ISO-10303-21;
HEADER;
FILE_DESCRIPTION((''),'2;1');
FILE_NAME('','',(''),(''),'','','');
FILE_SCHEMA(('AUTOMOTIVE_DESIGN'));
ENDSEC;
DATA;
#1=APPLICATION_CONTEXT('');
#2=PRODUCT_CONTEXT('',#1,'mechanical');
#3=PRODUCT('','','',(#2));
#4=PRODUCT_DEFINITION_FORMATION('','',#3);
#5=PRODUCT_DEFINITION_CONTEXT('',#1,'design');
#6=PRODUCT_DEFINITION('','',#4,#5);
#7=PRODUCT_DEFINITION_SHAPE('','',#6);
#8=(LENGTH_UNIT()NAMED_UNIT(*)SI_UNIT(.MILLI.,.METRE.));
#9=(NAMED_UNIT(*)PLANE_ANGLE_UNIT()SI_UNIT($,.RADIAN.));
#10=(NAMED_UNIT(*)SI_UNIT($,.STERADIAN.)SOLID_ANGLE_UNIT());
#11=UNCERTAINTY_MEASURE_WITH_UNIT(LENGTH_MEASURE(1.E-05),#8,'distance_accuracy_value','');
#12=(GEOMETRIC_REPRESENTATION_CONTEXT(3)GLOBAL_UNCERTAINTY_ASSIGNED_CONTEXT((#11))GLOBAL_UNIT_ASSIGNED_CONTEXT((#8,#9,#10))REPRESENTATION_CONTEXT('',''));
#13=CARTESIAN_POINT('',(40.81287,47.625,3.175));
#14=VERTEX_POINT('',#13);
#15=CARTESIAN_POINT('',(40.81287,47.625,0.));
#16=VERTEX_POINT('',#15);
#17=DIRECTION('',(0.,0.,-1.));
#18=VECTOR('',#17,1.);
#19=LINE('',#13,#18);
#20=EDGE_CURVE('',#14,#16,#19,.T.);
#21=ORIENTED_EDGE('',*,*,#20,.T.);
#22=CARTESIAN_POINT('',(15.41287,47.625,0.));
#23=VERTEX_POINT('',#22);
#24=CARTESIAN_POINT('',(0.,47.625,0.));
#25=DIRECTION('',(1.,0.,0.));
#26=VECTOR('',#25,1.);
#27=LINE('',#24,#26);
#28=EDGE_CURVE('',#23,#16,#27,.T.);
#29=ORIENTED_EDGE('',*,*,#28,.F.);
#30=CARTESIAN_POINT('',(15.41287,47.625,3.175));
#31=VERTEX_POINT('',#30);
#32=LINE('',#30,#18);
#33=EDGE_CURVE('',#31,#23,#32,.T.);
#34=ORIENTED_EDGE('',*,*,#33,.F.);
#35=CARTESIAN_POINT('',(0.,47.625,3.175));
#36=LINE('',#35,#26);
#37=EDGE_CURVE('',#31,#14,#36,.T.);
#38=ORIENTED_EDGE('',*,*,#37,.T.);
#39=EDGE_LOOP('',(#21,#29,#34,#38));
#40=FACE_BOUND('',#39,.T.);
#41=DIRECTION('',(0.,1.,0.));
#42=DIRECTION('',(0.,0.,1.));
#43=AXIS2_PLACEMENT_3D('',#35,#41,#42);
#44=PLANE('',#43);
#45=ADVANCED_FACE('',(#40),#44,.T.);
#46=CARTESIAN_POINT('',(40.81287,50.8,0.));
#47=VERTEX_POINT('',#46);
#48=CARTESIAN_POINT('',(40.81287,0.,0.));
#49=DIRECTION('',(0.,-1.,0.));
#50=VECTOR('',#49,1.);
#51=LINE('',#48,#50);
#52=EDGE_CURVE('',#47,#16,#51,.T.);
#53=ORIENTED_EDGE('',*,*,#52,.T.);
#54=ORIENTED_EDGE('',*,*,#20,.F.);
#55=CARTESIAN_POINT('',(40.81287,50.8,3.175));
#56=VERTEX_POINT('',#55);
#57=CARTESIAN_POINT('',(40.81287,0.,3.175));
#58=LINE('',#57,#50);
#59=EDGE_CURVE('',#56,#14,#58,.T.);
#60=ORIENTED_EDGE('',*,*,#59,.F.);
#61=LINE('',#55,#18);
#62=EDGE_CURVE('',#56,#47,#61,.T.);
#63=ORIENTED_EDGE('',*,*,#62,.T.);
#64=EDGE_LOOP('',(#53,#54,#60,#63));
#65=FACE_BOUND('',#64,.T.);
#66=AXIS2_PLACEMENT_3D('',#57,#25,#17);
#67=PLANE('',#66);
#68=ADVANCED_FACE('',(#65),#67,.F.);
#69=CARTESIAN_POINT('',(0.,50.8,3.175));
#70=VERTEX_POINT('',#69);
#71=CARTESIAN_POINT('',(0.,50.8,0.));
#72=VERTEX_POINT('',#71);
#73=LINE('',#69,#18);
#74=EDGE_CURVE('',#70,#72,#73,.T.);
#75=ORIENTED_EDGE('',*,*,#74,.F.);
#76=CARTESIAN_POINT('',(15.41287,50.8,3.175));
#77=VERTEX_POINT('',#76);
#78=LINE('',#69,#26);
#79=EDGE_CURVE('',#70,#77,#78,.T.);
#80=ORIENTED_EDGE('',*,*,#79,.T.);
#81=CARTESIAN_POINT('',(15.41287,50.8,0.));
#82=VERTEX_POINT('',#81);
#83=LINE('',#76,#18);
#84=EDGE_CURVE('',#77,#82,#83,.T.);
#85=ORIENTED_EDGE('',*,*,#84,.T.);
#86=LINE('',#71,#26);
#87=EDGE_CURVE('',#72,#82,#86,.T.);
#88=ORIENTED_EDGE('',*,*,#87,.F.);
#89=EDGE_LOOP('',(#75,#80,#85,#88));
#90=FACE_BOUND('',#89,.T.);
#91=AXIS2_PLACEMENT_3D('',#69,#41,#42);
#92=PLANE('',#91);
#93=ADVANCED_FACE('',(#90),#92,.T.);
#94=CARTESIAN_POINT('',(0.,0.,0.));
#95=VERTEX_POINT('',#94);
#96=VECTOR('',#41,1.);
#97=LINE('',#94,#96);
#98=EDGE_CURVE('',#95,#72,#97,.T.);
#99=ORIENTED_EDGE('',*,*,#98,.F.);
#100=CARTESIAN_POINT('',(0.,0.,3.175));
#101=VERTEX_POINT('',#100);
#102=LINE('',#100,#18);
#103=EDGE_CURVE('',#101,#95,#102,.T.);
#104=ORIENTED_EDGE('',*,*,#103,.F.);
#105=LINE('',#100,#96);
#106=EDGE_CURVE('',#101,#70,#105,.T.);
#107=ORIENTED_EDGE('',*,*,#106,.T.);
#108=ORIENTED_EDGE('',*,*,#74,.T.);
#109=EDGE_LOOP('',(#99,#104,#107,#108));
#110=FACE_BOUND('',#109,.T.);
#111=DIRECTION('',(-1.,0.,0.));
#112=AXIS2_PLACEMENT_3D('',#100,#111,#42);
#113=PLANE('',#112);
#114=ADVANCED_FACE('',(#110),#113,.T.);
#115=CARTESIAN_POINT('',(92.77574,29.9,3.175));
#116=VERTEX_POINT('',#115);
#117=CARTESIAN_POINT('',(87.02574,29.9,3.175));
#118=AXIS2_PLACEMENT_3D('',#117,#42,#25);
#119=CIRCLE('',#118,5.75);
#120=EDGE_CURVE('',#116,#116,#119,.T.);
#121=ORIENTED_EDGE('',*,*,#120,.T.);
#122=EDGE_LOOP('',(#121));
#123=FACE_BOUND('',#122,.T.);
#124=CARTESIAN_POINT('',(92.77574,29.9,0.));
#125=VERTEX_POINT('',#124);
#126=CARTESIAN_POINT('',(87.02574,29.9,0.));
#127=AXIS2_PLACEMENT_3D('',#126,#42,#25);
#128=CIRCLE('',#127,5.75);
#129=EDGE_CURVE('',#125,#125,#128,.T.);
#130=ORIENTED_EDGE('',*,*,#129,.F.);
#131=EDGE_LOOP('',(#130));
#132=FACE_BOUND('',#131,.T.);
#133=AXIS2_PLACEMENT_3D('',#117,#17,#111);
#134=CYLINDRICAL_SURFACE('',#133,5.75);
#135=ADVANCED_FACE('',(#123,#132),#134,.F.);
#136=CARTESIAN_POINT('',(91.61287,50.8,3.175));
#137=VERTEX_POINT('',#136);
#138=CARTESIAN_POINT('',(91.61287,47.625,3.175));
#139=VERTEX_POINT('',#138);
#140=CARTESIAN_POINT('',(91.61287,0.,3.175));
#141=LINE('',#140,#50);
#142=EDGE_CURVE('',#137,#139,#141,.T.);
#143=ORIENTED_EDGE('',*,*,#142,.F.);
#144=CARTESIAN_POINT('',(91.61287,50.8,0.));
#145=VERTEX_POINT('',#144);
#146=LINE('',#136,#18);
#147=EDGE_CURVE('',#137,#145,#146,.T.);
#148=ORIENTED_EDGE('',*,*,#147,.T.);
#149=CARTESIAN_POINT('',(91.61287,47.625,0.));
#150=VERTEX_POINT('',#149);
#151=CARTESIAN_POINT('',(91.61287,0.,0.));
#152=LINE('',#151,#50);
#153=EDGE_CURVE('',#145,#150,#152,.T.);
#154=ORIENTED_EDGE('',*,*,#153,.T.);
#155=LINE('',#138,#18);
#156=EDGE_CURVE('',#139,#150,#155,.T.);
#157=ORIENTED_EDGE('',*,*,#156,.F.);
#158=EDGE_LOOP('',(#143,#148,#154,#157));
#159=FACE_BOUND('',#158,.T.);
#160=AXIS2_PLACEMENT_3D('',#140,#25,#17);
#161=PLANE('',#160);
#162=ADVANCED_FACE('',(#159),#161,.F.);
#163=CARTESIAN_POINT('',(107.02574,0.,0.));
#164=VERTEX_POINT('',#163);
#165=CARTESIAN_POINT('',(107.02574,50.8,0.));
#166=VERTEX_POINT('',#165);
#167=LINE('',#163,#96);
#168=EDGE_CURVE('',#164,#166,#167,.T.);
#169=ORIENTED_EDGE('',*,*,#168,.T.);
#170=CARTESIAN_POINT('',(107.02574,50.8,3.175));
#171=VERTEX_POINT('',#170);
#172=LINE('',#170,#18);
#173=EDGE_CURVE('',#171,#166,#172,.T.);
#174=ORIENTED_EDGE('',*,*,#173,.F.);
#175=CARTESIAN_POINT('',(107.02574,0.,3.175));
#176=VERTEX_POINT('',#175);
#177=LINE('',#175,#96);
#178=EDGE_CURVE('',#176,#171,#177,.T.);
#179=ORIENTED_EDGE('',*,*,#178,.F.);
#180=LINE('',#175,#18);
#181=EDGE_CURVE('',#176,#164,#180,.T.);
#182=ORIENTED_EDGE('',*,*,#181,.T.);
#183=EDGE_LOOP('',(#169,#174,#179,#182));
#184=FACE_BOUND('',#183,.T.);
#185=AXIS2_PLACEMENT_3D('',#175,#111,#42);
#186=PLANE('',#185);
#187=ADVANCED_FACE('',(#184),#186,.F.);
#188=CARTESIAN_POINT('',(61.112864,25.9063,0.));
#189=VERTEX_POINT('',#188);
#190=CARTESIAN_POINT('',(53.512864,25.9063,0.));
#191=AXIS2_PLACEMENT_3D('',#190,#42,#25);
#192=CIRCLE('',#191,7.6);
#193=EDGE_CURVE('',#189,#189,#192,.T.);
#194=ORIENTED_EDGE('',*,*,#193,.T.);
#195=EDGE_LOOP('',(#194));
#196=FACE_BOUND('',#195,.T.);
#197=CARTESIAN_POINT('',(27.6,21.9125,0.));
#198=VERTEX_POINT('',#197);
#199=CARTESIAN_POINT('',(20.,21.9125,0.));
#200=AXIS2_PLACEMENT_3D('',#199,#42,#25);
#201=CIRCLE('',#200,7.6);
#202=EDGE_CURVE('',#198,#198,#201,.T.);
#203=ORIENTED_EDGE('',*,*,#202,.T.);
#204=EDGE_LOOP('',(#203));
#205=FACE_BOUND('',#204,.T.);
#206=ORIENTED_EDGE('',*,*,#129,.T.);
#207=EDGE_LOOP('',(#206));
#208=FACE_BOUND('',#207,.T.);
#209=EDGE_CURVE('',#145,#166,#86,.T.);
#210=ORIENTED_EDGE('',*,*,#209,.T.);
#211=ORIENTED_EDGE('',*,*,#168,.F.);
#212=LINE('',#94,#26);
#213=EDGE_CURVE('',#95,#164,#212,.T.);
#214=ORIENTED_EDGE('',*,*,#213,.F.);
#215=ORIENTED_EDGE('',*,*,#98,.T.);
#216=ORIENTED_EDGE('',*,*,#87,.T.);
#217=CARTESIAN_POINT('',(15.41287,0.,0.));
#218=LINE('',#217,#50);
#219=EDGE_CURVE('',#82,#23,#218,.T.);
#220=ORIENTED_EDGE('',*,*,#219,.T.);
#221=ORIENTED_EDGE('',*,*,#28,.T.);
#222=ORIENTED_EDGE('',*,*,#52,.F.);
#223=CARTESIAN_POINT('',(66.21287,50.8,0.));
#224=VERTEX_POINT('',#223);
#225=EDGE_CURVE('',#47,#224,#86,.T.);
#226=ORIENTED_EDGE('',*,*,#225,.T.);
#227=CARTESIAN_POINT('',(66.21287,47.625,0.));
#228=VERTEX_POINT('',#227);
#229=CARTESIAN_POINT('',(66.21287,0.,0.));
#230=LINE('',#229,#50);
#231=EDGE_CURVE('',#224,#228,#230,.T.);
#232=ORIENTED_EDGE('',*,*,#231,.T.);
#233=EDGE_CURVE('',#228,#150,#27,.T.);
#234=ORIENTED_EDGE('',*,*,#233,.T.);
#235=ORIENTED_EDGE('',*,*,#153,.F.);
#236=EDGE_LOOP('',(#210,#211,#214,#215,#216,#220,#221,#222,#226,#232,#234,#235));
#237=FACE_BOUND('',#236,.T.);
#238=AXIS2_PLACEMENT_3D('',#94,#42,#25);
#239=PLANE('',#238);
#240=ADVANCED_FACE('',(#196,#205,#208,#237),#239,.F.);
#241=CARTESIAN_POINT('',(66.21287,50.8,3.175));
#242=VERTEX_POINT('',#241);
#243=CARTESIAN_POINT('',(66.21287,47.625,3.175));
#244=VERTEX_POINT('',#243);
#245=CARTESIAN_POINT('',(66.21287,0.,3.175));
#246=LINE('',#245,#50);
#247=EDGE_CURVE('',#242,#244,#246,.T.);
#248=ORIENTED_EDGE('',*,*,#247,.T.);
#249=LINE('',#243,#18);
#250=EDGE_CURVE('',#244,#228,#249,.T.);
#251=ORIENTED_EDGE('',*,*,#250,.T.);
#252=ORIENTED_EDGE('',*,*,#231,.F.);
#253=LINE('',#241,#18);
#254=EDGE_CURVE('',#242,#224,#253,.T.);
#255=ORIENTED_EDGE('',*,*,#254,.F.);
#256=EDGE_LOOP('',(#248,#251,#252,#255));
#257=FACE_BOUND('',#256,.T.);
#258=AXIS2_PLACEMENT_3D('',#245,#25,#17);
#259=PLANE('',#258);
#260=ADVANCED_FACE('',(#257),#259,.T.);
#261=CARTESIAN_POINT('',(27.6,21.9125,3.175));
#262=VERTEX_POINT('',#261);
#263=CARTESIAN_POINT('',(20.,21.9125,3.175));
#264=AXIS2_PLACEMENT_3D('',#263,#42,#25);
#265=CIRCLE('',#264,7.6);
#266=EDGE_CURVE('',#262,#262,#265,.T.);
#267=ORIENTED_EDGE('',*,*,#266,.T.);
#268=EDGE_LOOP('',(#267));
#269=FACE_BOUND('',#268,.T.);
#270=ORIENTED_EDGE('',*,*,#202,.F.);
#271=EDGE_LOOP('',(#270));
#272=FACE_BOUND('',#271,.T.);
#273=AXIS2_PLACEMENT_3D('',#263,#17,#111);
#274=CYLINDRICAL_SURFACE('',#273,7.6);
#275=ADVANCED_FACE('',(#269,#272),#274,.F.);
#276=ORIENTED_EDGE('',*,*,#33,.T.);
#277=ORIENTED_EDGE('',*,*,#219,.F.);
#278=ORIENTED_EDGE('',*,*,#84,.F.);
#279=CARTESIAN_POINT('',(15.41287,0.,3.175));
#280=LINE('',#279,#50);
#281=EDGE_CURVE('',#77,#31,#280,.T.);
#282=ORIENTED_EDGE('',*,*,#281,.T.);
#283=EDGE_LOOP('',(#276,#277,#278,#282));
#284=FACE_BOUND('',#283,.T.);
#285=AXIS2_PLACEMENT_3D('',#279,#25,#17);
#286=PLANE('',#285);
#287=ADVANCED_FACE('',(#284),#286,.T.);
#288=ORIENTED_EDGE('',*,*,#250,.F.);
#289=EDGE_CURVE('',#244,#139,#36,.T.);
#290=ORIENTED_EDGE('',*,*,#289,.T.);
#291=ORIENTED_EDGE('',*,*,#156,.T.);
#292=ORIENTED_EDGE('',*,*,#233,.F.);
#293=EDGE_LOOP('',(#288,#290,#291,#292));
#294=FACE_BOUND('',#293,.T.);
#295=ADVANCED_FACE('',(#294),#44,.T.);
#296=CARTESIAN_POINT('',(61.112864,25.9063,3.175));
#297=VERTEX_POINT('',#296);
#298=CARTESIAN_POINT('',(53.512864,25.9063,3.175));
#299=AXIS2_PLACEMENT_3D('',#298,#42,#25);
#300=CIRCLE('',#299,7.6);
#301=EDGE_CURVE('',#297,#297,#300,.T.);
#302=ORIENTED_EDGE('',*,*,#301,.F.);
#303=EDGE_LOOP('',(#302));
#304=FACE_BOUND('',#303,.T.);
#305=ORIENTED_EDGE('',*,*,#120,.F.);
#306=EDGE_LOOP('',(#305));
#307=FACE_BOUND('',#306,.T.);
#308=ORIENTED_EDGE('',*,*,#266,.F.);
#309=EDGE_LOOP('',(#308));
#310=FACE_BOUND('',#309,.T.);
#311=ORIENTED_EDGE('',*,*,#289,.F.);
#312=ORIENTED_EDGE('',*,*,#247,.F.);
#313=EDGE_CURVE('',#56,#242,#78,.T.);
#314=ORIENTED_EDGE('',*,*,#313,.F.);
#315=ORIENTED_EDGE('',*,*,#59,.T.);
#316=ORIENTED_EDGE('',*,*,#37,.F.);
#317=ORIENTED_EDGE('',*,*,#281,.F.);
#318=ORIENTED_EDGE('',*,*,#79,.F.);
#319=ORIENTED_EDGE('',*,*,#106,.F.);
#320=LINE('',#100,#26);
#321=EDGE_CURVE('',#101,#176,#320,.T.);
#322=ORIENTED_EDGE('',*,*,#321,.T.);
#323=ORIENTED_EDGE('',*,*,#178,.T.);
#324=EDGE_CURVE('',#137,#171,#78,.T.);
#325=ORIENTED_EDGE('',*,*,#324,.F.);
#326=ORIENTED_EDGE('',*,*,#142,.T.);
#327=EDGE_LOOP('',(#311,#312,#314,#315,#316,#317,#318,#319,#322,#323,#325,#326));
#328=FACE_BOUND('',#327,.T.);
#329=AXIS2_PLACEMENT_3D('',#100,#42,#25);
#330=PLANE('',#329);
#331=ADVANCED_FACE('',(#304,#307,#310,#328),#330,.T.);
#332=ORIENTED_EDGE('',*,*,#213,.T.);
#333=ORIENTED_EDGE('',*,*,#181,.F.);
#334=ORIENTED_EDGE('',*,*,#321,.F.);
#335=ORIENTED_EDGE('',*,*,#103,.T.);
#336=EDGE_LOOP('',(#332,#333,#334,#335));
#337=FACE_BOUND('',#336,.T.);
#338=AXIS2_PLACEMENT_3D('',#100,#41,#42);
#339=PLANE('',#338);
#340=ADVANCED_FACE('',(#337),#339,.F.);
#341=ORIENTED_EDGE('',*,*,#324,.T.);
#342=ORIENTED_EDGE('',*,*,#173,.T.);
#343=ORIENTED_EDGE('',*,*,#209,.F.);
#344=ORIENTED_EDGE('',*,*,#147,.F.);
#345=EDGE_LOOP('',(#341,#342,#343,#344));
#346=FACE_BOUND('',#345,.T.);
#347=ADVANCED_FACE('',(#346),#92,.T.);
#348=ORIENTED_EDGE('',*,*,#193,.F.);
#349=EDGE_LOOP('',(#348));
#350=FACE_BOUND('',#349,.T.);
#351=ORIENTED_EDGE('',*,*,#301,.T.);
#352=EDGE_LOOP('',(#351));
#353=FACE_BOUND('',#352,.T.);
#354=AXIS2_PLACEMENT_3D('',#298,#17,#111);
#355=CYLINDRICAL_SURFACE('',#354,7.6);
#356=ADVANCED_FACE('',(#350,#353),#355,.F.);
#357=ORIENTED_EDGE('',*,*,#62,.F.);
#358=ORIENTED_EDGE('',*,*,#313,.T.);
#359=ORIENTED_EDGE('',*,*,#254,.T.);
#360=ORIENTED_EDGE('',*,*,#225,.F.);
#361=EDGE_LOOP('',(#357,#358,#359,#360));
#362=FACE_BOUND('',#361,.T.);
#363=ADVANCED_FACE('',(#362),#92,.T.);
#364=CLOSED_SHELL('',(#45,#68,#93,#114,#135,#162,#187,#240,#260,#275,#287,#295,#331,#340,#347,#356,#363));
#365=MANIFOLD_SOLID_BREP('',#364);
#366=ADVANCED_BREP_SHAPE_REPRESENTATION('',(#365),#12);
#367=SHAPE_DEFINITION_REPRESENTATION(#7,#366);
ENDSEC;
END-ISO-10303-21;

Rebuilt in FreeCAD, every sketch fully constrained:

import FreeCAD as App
import Part
import Sketcher

V = App.Vector
Q = App.Units.Quantity


def add_polygon(sketch, points):
    """Adds a closed chain of lines whose ends are joined by coincident constraints."""
    first, n = sketch.GeometryCount, len(points)
    for a, b in zip(points, points[1:] + points[:1]):
        sketch.addGeometry(Part.LineSegment(App.Vector(*a, 0), App.Vector(*b, 0)), False)
    for i in range(n):
        sketch.addConstraint(Sketcher.Constraint("Coincident", first + i, 2, first + (i + 1) % n, 1))

doc = App.newDocument("Part")
body = doc.addObject("PartDesign::Body", "Body")

sketch1 = body.newObject("Sketcher::SketchObject", "Sketch")
sketch1.AttachmentSupport = (doc.getObject("XY_Plane"), [""])
sketch1.MapMode = "FlatFace"
add_polygon(sketch1, [(0, 50.8), (0, 0), (107, 0), (107, 50.8), (91.6, 50.8), (91.6, 47.6), (66.2, 47.6), (66.2, 50.8), (40.8, 50.8), (40.8, 47.6), (15.4, 47.6), (15.4, 50.8)])
sketch1.addGeometry(Part.Circle(V(20, 21.9, 0), V(0, 0, 1), 7.6), False)
sketch1.addGeometry(Part.Circle(V(53.5, 25.9, 0), V(0, 0, 1), 7.6), False)
sketch1.addGeometry(Part.Circle(V(87, 29.9, 0), V(0, 0, 1), 5.8), False)
sketch1.addConstraint(Sketcher.Constraint("Vertical", 0))
sketch1.addConstraint(Sketcher.Constraint("Horizontal", 1))
sketch1.addConstraint(Sketcher.Constraint("Vertical", 2))
sketch1.addConstraint(Sketcher.Constraint("Horizontal", 3))
sketch1.addConstraint(Sketcher.Constraint("Vertical", 4))
sketch1.addConstraint(Sketcher.Constraint("Horizontal", 5))
sketch1.addConstraint(Sketcher.Constraint("Vertical", 6))
sketch1.addConstraint(Sketcher.Constraint("Horizontal", 7))
sketch1.addConstraint(Sketcher.Constraint("Vertical", 8))
sketch1.addConstraint(Sketcher.Constraint("Horizontal", 9))
sketch1.addConstraint(Sketcher.Constraint("Vertical", 10))
sketch1.addConstraint(Sketcher.Constraint("Horizontal", 11))
sketch1.addConstraint(Sketcher.Constraint("Coincident", 0, 2, -1, 1))
sketch1.addConstraint(Sketcher.Constraint("Equal", 12, 13))
sketch1.addConstraint(Sketcher.Constraint("Horizontal", 3, 2, 6, 2))
sketch1.addConstraint(Sketcher.Constraint("Horizontal", 5, 2, 8, 2))
sketch1.addConstraint(Sketcher.Constraint("Horizontal", 7, 2, 10, 2))
sketch1.addConstraint(Sketcher.Constraint("Equal", 5, 7))
sketch1.addConstraint(Sketcher.Constraint("Equal", 7, 9))
sketch1.addConstraint(Sketcher.Constraint("Equal", 3, 11))
sketch1.addConstraint(Sketcher.Constraint("DistanceX", 5, 2, 5, 1, Q("1 in")))
sketch1.addConstraint(Sketcher.Constraint("DistanceY", 0, 2, 0, 1, Q("2 in")))
sketch1.addConstraint(Sketcher.Constraint("Diameter", 12, 15.2))
sketch1.addConstraint(Sketcher.Constraint("Diameter", 14, 11.5))
sketch1.addConstraint(Sketcher.Constraint("DistanceY", 4, 2, 4, 1, Q("0.125 in")))
sketch1.addConstraint(Sketcher.Constraint("DistanceX", 1, 1, 1, 2, 107.02574))
sketch1.addConstraint(Sketcher.Constraint("DistanceX", -1, 1, 12, 3, 20.0))
sketch1.addConstraint(Sketcher.Constraint("DistanceY", -1, 1, 12, 3, 21.9125))
sketch1.addConstraint(Sketcher.Constraint("DistanceY", -1, 1, 13, 3, 25.9063))
sketch1.addConstraint(Sketcher.Constraint("DistanceY", -1, 1, 14, 3, 29.9))
sketch1.addConstraint(Sketcher.Constraint("DistanceX", 14, 3, 1, 2, 20.0))
sketch1.addConstraint(Sketcher.Constraint("DistanceX", -1, 1, 13, 3, 53.512864))
pad1 = body.newObject("PartDesign::Pad", "Pad")
pad1.Profile = sketch1
pad1.Length = Q("0.125 in")

doc.recompute()
